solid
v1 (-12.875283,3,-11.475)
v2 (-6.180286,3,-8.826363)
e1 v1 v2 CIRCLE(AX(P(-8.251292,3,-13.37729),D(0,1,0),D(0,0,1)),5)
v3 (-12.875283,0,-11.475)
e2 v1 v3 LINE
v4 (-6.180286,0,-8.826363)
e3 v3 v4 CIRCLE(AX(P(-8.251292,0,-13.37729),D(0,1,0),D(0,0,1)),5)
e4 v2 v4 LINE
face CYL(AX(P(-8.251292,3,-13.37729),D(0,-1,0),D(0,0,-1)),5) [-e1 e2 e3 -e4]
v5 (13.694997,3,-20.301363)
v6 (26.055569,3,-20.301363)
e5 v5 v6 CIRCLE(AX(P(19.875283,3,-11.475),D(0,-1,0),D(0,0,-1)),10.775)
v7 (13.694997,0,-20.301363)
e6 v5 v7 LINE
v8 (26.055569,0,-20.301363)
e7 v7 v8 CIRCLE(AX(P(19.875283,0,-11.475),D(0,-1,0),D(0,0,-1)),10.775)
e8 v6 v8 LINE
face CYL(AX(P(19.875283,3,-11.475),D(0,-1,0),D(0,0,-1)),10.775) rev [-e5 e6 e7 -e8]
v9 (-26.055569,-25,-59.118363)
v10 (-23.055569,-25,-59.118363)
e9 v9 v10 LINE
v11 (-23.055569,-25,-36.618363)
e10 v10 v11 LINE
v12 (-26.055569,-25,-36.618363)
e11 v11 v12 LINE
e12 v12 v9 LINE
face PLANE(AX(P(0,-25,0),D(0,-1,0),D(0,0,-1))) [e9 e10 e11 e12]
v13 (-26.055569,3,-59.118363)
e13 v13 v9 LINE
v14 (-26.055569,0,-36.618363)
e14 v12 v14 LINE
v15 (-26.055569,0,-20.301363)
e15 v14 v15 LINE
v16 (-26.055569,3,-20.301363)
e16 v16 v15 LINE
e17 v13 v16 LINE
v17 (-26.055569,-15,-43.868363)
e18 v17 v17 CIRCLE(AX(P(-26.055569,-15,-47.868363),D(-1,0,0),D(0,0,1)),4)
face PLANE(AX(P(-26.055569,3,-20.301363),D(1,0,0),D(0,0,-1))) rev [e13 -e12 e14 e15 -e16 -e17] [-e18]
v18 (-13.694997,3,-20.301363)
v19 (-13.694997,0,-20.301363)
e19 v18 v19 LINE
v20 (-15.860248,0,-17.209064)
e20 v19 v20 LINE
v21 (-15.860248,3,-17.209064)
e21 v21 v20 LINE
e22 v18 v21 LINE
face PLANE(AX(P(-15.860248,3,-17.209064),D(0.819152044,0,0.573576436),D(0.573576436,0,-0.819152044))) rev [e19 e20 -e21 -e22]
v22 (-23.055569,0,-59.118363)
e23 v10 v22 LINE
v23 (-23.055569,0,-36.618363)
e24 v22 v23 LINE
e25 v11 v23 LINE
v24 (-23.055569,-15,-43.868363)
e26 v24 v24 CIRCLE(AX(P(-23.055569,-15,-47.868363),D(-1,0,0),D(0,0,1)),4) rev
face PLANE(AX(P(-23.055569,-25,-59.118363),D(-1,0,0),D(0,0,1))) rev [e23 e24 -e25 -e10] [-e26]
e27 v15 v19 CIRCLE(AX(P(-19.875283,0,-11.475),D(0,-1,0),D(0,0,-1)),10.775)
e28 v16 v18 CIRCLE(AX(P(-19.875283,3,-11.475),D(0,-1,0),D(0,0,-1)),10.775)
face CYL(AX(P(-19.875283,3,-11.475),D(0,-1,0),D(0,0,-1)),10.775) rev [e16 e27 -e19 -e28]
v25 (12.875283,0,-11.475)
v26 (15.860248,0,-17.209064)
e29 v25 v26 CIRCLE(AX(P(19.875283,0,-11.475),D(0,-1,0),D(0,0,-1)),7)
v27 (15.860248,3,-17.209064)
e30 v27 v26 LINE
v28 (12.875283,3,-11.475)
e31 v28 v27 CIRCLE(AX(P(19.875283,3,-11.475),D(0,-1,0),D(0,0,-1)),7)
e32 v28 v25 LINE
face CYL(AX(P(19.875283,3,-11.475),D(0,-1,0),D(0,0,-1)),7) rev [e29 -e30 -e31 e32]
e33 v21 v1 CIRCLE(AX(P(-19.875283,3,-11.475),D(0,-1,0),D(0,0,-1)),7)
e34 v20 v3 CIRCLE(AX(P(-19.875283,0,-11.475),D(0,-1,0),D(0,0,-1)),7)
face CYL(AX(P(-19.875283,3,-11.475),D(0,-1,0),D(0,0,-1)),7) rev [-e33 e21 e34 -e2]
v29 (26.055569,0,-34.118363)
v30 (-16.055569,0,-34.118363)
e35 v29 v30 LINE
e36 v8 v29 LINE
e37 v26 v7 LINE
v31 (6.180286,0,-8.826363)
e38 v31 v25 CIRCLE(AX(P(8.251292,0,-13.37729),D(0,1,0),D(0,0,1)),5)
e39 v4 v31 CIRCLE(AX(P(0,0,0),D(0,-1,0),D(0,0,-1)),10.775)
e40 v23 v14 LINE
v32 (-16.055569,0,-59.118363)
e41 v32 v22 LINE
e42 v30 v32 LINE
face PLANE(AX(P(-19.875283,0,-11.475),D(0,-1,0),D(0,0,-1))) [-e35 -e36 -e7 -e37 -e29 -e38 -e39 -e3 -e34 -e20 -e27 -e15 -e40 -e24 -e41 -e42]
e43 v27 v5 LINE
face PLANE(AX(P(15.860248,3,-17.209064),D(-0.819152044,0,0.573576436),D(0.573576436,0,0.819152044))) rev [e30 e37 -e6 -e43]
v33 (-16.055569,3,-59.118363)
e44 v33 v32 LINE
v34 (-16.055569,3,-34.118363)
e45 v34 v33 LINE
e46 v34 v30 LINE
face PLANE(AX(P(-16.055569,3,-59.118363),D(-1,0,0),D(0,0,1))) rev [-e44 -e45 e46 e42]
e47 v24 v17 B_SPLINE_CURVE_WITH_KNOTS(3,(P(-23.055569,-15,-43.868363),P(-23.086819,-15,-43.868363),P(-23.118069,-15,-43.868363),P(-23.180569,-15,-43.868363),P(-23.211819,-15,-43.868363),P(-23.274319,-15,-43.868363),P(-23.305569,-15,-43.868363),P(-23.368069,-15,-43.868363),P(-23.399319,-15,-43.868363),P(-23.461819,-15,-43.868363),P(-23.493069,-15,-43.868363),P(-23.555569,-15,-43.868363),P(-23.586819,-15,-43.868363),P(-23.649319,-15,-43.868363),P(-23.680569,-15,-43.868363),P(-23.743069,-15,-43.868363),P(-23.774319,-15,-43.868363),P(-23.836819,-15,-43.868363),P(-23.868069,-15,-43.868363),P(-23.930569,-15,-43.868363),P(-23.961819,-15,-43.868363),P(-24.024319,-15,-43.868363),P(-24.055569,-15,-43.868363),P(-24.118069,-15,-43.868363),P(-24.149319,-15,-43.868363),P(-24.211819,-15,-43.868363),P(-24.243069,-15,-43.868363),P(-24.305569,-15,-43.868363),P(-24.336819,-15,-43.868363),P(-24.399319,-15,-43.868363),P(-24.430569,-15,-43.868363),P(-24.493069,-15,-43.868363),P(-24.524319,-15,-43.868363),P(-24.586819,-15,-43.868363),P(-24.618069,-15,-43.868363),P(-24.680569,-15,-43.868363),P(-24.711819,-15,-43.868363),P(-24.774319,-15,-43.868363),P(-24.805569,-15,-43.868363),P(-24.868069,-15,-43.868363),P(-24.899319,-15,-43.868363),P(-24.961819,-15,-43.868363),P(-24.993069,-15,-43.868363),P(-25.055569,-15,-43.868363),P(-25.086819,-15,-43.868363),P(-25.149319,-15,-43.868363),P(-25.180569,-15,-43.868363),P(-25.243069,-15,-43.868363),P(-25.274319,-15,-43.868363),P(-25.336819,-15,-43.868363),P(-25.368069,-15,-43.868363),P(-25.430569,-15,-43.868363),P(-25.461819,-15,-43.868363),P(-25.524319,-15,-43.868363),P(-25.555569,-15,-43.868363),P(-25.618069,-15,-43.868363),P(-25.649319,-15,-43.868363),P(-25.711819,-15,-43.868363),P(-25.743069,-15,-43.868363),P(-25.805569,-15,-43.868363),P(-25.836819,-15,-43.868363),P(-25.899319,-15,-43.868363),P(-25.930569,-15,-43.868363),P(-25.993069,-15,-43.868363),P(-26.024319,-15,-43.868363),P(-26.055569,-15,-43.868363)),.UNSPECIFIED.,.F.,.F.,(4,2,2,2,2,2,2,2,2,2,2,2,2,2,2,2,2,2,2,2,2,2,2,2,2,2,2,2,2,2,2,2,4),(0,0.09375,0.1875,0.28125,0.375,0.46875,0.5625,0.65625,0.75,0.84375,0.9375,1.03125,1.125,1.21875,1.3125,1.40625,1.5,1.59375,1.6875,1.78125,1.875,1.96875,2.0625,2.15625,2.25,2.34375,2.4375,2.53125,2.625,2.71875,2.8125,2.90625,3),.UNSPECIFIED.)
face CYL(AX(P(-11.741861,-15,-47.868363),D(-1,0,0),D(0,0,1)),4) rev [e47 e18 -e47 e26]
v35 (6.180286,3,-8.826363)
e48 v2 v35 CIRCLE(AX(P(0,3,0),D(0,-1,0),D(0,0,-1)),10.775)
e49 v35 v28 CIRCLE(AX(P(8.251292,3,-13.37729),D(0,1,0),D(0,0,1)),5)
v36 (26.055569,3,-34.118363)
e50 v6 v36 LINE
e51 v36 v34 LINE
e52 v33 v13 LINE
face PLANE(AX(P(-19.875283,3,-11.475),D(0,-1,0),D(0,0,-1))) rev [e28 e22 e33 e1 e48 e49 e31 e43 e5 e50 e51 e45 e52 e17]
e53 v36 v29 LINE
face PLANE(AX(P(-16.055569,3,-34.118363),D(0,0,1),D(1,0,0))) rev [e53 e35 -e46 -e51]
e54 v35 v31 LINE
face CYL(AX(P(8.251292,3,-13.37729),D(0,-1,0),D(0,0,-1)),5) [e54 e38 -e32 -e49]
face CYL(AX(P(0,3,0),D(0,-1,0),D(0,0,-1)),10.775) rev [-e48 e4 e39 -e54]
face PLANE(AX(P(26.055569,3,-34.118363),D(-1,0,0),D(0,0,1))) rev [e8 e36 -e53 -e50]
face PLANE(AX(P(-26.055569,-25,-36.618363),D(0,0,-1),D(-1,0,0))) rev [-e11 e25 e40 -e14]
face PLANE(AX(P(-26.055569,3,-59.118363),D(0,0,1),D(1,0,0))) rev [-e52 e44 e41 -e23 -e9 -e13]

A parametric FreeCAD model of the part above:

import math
import FreeCAD as App
import Part
import Sketcher
Q = App.Units.Quantity

doc = App.newDocument("Part")
body = doc.addObject("PartDesign::Body", "Body")

# Sketch on XZ plane
sketch1 = body.newObject("Sketcher::SketchObject", "Sketch")
sketch1.AttachmentSupport = (doc.getObject("XZ_Plane"), [""])
sketch1.MapMode = "FlatFace"
sketch1.addGeometry([
    Part.LineSegment(App.Vector(-13.7, -20.3, 0), App.Vector(-15.9, -17.2, 0)),  # 0
    Part.ArcOfCircle(Part.Circle(App.Vector(-19.9, -11.5, 0), App.Vector(0, 0, 1), 7), math.radians(-55), math.radians(0)),  # 1
    Part.ArcOfCircle(Part.Circle(App.Vector(-8.3, -13.4, 0), App.Vector(0, 0, 1), 5), math.radians(66), math.radians(158)),  # 2
    Part.ArcOfCircle(Part.Circle(App.Vector(0, 0, 0), App.Vector(0, 0, 1), 10.8), math.radians(-125), math.radians(-55)),  # 3
    Part.ArcOfCircle(Part.Circle(App.Vector(8.3, -13.4, 0), App.Vector(0, 0, 1), 5), math.radians(22), math.radians(114)),  # 4
    Part.ArcOfCircle(Part.Circle(App.Vector(19.9, -11.5, 0), App.Vector(0, 0, 1), 7), math.radians(-180), math.radians(-125)),  # 5
    Part.LineSegment(App.Vector(15.9, -17.2, 0), App.Vector(13.7, -20.3, 0)),  # 6
    Part.ArcOfCircle(Part.Circle(App.Vector(19.9, -11.5, 0), App.Vector(0, 0, 1), 10.8), math.radians(-125), math.radians(-55)),  # 7
    Part.LineSegment(App.Vector(26.1, -20.3, 0), App.Vector(26.1, -34.1, 0)),  # 8
    Part.LineSegment(App.Vector(26.1, -34.1, 0), App.Vector(-16.1, -34.1, 0)),  # 9
    Part.LineSegment(App.Vector(-16.1, -34.1, 0), App.Vector(-16.1, -59.1, 0)),  # 10
    Part.LineSegment(App.Vector(-16.1, -59.1, 0), App.Vector(-26.1, -59.1, 0)),  # 11
    Part.LineSegment(App.Vector(-26.1, -59.1, 0), App.Vector(-26.1, -20.3, 0)),  # 12
    Part.ArcOfCircle(Part.Circle(App.Vector(-19.9, -11.5, 0), App.Vector(0, 0, 1), 10.8), math.radians(-125), math.radians(-55)),  # 13
], False)
sketch1.addConstraint([
    Sketcher.Constraint("Coincident", 0, 2, 1, 1),
    Sketcher.Constraint("Coincident", 1, 2, 2, 2),
    Sketcher.Constraint("Coincident", 2, 1, 3, 1),
    Sketcher.Constraint("Coincident", 3, 2, 4, 2),
    Sketcher.Constraint("Coincident", 4, 1, 5, 1),
    Sketcher.Constraint("Coincident", 5, 2, 6, 1),
    Sketcher.Constraint("Coincident", 6, 2, 7, 1),
    Sketcher.Constraint("Coincident", 7, 2, 8, 1),
    Sketcher.Constraint("Coincident", 8, 2, 9, 1),
    Sketcher.Constraint("Coincident", 9, 2, 10, 1),
    Sketcher.Constraint("Coincident", 10, 2, 11, 1),
    Sketcher.Constraint("Coincident", 11, 2, 12, 1),
    Sketcher.Constraint("Coincident", 12, 2, 13, 1),
    Sketcher.Constraint("Coincident", 13, 2, 0, 1),
    Sketcher.Constraint("Vertical", 8),
    Sketcher.Constraint("Horizontal", 9),
    Sketcher.Constraint("Vertical", 10),
    Sketcher.Constraint("Horizontal", 11),
    Sketcher.Constraint("Vertical", 12),
    Sketcher.Constraint("Coincident", 3, 3, -1, 1),
    Sketcher.Constraint("Coincident", 7, 3, 5, 3),
    Sketcher.Constraint("Coincident", 13, 3, 1, 3),
    Sketcher.Constraint("Equal", 2, 4),
    Sketcher.Constraint("Equal", 1, 5),
    Sketcher.Constraint("Equal", 3, 7),
    Sketcher.Constraint("Equal", 7, 13),
    Sketcher.Constraint("Symmetric", 2, 3, 4, 3, -2),
    Sketcher.Constraint("Symmetric", 1, 3, 5, 3, -2),
    Sketcher.Constraint("Horizontal", 13, 3, 1, 2),
    Sketcher.Constraint("Horizontal", 0, 2, 5, 2),
    Sketcher.Constraint("Horizontal", 6, 2, 7, 2),
    Sketcher.Constraint("Horizontal", 7, 2, 12, 2),
    Sketcher.Constraint("Horizontal", 12, 2, 13, 2),
    Sketcher.Constraint("Radius", 1, 7.0),
    Sketcher.Constraint("Radius", 2, 5.0),
    Sketcher.Constraint("DistanceX", 11, 2, 11, 1, 10.0),
    Sketcher.Constraint("DistanceY", 10, 2, 10, 1, 25.0),
    Sketcher.Constraint("Angle", 0, Q("125 deg")),
    Sketcher.Constraint("Radius", 3, 10.775),
    Sketcher.Constraint("DistanceY", 8, 2, 8, 1, 13.817),
    Sketcher.Constraint("DistanceY", 1, 3, -1, 1, 11.475),
    Sketcher.Constraint("DistanceX", 9, 2, 9, 1, 42.111138),
    Sketcher.Constraint("DistanceY", 0, 2, 2, 1, 8.382701),
    Sketcher.Constraint("DistanceY", 2, 3, -1, 1, 13.37729),
])
pad1 = body.newObject("PartDesign::Pad", "Pad")
pad1.Profile = sketch1
pad1.Length = 3
pad1.Reversed = True

# Sketch on XZ plane
sketch2 = body.newObject("Sketcher::SketchObject", "Sketch001")
sketch2.AttachmentSupport = (doc.getObject("XZ_Plane"), [""])
sketch2.MapMode = "FlatFace"
sketch2.addGeometry([
    Part.LineSegment(App.Vector(-26.1, -36.6, 0), App.Vector(-26.1, -59.1, 0)),
    Part.LineSegment(App.Vector(-26.1, -59.1, 0), App.Vector(-23.1, -59.1, 0)),
    Part.LineSegment(App.Vector(-23.1, -59.1, 0), App.Vector(-23.1, -36.6, 0)),
    Part.LineSegment(App.Vector(-23.1, -36.6, 0), App.Vector(-26.1, -36.6, 0)),
], False)
sketch2.addConstraint([
    Sketcher.Constraint("Coincident", 0, 2, 1, 1),
    Sketcher.Constraint("Coincident", 1, 2, 2, 1),
    Sketcher.Constraint("Coincident", 2, 2, 3, 1),
    Sketcher.Constraint("Coincident", 3, 2, 0, 1),
    Sketcher.Constraint("Vertical", 0),
    Sketcher.Constraint("Horizontal", 1),
    Sketcher.Constraint("Vertical", 2),
    Sketcher.Constraint("Horizontal", 3),
    Sketcher.Constraint("DistanceX", 1, 1, 1, 2, 3.0),
    Sketcher.Constraint("DistanceY", 0, 2, 0, 1, 22.5),
    Sketcher.Constraint("DistanceX", 0, 2, -1, 1, 26.055569),
    Sketcher.Constraint("DistanceY", 0, 2, -1, 1, 59.118363),
])
pad2 = body.newObject("PartDesign::Pad", "Pad001")
pad2.Profile = sketch2
pad2.Length = 25

# Sketch on YZ plane
sketch3 = body.newObject("Sketcher::SketchObject", "Sketch002")
sketch3.AttachmentSupport = (doc.getObject("YZ_Plane"), [""])
sketch3.MapMode = "FlatFace"
sketch3.AttachmentOffset = App.Placement(App.Vector(0, 0, -26.055569), App.Rotation())
sketch3.addGeometry(Part.Circle(App.Vector(-15, -47.9, 0), App.Vector(0, 0, 1), 4), False)
sketch3.addConstraint([
    Sketcher.Constraint("Diameter", 0, 8.0),
    Sketcher.Constraint("DistanceX", 0, 3, -1, 1, 15.0),
    Sketcher.Constraint("DistanceY", 0, 3, -1, 1, 47.868363),
])
pocket1 = body.newObject("PartDesign::Pocket", "Pocket")
pocket1.Profile = sketch3
pocket1.Length = 3
pocket1.Reversed = True

doc.recompute()
